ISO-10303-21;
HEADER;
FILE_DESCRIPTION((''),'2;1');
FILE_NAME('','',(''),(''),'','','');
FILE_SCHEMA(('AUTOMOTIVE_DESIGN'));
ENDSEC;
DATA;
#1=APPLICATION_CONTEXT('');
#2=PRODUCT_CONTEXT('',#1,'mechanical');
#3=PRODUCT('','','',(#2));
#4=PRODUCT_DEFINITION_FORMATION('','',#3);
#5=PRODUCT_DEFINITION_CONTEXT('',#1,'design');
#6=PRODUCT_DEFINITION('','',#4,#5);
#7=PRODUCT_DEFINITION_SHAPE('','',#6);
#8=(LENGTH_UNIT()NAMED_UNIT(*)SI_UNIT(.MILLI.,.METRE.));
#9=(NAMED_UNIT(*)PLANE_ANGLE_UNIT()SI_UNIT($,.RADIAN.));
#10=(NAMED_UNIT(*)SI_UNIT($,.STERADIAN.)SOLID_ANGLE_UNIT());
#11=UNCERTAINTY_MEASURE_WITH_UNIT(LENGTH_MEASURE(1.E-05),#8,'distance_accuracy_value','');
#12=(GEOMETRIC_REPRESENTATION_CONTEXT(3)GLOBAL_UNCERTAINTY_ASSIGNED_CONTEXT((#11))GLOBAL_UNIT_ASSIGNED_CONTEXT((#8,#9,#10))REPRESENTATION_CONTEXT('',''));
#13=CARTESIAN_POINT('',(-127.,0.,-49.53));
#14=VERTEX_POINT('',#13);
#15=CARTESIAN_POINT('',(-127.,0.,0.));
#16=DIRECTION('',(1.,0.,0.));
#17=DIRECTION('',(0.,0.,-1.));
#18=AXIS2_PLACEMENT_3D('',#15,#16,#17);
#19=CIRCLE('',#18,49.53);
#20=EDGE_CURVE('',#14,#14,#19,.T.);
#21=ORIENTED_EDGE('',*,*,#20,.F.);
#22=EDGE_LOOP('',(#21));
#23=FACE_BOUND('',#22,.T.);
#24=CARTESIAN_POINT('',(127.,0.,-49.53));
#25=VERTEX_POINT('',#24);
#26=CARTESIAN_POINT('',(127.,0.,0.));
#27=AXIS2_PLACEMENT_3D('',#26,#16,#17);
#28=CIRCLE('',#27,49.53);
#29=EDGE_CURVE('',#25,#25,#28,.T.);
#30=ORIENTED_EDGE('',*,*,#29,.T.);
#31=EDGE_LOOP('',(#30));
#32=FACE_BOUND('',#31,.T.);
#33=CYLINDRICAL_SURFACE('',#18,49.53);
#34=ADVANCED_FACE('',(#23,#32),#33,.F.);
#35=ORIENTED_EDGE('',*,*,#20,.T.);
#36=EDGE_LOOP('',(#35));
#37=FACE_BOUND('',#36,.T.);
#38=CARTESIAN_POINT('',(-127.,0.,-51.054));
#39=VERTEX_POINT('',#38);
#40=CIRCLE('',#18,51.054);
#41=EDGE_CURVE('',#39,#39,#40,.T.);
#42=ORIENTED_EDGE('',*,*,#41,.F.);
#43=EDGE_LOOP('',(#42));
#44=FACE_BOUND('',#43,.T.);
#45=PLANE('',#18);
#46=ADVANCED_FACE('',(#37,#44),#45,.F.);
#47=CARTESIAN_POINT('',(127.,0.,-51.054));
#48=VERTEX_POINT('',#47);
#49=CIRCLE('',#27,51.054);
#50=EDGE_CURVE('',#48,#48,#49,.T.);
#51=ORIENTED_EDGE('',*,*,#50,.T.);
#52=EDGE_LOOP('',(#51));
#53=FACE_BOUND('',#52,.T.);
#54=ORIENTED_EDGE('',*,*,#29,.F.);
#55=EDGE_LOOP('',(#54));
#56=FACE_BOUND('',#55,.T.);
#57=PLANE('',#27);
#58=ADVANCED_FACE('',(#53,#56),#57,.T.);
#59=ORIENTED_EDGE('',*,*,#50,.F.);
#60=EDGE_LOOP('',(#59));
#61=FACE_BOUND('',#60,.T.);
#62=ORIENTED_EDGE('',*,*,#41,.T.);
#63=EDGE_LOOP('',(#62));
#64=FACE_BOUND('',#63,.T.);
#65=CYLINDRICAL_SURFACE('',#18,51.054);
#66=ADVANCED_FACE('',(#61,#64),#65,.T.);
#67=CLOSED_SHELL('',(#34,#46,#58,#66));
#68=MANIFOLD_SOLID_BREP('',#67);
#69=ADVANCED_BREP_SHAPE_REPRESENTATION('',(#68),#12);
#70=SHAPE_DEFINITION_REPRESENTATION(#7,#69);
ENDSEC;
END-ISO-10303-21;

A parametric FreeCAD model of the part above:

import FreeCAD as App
import Part
import Sketcher
Q = App.Units.Quantity

doc = App.newDocument("Part")
body = doc.addObject("PartDesign::Body", "Body")

# Sketch on YZ plane
sketch1 = doc.addObject("Sketcher::SketchObject", "Sketch")
body.addObject(sketch1)
sketch1.AttachmentSupport = (doc.YZ_Plane, [""])
sketch1.MapMode = "FlatFace"
sketch1.addGeometry([
    Part.Circle(App.Vector(0, 0, 0), App.Vector(0, 0, 1), 51.054),
    Part.Circle(App.Vector(0, 0, 0), App.Vector(0, 0, 1), 49.53),
], False)
sketch1.addConstraint([
    Sketcher.Constraint("Coincident", 0, 3, -1, 1),
    Sketcher.Constraint("Coincident", 1, 3, -1, 1),
    Sketcher.Constraint("Diameter", 1, Q("3.9 in")),
    Sketcher.Constraint("Diameter", 0, Q("4.02 in")),
])
pad1 = doc.addObject("PartDesign::Pad", "Pad")
body.addObject(pad1)
pad1.Profile = sketch1
pad1.Type = "TwoLengths"
pad1.Length = Q("5 in")
pad1.Length2 = Q("5 in")

doc.recompute()
